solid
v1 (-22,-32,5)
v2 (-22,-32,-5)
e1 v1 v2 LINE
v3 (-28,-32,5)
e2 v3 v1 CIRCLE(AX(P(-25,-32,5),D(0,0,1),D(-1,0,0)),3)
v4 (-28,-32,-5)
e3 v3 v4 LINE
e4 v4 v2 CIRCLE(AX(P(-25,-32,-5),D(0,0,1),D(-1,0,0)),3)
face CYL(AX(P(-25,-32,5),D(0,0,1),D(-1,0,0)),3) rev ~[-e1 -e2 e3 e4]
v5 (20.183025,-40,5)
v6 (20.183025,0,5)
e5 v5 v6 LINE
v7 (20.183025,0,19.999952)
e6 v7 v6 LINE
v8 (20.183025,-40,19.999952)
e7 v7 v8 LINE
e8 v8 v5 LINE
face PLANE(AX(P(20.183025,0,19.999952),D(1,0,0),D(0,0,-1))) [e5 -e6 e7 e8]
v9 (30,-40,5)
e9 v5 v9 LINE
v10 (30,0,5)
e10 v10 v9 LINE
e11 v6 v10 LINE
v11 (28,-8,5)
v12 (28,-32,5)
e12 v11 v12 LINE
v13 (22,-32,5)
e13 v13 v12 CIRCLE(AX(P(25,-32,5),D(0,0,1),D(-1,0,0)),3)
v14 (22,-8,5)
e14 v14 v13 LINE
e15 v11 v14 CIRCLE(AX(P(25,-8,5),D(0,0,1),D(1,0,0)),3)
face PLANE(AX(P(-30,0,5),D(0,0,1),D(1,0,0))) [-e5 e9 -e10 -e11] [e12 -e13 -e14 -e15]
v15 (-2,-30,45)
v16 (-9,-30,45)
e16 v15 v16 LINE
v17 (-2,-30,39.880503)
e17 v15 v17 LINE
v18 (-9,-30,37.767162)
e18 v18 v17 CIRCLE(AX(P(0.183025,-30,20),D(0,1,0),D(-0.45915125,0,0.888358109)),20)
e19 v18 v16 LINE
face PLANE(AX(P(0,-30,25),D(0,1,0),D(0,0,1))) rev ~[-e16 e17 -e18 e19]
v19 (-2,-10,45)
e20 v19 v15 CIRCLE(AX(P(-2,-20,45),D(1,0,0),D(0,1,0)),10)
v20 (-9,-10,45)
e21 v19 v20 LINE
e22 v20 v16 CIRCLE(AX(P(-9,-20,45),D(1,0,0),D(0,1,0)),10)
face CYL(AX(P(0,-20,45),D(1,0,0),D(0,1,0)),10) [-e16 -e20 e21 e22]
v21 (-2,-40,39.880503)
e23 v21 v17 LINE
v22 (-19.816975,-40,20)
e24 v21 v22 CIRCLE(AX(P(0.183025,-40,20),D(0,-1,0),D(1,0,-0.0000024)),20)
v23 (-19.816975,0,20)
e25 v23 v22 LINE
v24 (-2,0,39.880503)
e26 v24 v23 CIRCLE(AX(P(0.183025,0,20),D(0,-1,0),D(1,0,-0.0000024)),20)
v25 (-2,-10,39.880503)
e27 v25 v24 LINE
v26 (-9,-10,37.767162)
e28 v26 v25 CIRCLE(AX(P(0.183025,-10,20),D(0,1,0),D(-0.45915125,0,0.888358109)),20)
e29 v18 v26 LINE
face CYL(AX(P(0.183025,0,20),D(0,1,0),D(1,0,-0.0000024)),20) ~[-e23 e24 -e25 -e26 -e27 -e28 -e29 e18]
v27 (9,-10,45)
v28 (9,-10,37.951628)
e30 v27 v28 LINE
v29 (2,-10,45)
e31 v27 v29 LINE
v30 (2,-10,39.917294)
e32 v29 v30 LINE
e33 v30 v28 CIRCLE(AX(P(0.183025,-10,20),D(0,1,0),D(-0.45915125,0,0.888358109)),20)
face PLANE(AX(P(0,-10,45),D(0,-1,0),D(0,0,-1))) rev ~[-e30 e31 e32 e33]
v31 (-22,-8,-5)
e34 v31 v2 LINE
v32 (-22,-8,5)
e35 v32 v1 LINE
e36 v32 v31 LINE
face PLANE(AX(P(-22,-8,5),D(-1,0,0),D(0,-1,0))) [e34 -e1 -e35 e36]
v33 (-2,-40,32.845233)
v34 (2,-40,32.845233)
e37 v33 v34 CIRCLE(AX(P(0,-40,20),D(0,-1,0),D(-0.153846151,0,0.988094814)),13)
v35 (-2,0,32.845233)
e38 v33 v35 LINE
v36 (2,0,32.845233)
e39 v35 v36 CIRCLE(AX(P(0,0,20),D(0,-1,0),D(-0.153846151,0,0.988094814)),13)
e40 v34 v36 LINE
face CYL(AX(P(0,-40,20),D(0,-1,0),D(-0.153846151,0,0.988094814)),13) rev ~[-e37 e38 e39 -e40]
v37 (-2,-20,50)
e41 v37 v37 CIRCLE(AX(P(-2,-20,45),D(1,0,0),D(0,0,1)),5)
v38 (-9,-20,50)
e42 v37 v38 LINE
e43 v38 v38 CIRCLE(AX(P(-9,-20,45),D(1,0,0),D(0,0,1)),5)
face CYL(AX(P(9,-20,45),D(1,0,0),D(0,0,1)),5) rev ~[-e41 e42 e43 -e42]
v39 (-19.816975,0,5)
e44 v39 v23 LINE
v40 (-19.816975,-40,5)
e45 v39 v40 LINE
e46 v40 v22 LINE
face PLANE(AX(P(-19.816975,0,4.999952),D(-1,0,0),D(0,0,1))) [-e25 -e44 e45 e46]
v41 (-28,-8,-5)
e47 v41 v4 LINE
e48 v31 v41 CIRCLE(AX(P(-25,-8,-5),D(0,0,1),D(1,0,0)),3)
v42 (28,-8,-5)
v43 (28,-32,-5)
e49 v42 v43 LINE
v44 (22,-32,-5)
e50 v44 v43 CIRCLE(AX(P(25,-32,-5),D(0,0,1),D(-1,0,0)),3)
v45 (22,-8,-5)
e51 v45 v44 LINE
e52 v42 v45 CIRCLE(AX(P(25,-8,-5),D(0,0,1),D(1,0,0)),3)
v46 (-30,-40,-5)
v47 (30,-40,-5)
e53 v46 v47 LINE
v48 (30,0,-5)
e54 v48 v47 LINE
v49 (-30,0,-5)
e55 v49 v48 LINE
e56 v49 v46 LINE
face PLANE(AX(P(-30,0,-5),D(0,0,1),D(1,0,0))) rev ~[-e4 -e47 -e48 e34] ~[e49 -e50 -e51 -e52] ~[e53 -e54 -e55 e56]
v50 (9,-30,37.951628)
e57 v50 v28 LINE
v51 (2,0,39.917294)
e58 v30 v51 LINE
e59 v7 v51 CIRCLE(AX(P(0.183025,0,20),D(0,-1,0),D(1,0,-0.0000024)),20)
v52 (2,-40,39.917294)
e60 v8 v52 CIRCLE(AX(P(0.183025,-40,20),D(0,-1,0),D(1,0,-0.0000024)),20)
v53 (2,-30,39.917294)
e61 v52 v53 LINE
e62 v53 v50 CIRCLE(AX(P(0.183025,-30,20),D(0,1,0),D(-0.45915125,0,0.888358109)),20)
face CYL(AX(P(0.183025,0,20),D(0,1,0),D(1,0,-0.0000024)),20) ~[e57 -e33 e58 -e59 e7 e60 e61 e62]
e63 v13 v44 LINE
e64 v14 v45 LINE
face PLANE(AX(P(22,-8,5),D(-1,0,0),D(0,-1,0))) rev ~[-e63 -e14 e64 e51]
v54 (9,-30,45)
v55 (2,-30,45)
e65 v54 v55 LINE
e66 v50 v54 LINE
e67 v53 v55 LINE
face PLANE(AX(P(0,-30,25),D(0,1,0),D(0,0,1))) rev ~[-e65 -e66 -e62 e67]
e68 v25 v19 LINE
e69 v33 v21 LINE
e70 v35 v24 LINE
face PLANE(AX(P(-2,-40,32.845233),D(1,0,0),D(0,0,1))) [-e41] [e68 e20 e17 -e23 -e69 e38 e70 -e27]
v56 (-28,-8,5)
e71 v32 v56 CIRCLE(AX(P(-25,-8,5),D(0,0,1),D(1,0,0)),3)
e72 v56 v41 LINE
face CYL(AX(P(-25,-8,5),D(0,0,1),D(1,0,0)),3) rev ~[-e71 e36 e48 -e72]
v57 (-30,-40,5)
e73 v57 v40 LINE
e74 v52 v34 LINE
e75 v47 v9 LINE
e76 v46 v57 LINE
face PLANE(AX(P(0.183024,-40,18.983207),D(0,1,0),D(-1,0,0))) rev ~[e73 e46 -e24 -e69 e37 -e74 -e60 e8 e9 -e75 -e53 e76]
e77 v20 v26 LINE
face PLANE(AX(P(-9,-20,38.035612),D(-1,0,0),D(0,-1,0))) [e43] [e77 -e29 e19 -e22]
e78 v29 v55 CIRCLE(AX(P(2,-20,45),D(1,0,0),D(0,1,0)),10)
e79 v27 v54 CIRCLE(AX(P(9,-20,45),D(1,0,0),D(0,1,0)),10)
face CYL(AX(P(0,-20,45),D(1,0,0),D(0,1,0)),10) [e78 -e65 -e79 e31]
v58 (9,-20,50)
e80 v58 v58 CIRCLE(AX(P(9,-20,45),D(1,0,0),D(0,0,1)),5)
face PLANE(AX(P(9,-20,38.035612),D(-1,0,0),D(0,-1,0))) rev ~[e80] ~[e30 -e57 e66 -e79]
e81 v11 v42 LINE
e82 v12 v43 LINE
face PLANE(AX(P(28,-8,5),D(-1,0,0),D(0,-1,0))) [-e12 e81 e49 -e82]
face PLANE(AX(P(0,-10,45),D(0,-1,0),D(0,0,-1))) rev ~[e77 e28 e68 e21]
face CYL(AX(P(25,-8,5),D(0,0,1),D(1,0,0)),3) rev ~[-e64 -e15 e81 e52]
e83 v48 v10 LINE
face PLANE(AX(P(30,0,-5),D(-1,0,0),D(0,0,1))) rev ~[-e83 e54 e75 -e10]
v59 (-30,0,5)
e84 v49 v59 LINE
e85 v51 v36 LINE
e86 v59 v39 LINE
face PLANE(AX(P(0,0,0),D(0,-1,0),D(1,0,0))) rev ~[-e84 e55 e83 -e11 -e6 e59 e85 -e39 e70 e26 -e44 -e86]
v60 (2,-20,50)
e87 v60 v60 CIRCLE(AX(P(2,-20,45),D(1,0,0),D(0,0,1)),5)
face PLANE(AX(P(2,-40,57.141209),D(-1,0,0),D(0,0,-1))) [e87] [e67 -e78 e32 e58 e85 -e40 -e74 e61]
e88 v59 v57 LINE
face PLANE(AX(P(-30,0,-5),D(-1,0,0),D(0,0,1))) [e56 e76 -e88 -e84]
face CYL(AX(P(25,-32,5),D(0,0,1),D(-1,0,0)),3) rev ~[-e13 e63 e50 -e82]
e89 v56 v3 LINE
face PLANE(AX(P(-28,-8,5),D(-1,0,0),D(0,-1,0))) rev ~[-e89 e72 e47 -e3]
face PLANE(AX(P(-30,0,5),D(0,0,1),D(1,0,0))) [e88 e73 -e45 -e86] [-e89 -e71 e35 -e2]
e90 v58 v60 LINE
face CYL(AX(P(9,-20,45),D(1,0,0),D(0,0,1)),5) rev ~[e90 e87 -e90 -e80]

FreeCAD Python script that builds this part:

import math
import FreeCAD as App
import Part
import Sketcher
Q = App.Units.Quantity


def add_polygon(sketch, points):
    """Adds a closed chain of lines whose ends are joined by coincident constraints."""
    first, n = sketch.GeometryCount, len(points)
    for a, b in zip(points, points[1:] + points[:1]):
        sketch.addGeometry(Part.LineSegment(App.Vector(*a, 0), App.Vector(*b, 0)), False)
    for i in range(n):
        sketch.addConstraint(Sketcher.Constraint("Coincident", first + i, 2, first + (i + 1) % n, 1))

doc = App.newDocument("Part")
body = doc.addObject("PartDesign::Body", "Body")

# Sketch on XZ plane
sketch1 = body.newObject("Sketcher::SketchObject", "Sketch")
sketch1.AttachmentSupport = (doc.getObject("XZ_Plane"), [""])
sketch1.MapMode = "FlatFace"
add_polygon(sketch1, [(-30, 5), (-30, -5), (30, -5), (30, 5)])  # lines 0-3
sketch1.addConstraint(Sketcher.Constraint("Vertical", 0))
sketch1.addConstraint(Sketcher.Constraint("Horizontal", 1))
sketch1.addConstraint(Sketcher.Constraint("Vertical", 2))
sketch1.addConstraint(Sketcher.Constraint("Horizontal", 3))
sketch1.addConstraint(Sketcher.Constraint("Symmetric", 0, 2, 2, 2, -1, 1))
sketch1.addConstraint(Sketcher.Constraint("DistanceX", 1, 1, 1, 2, Q("60 mm")))
sketch1.addConstraint(Sketcher.Constraint("DistanceY", 0, 2, 0, 1, Q("10 mm")))
pad1 = body.newObject("PartDesign::Pad", "Pad")
pad1.Profile = sketch1
pad1.Length = 40

# Sketch on XZ plane
sketch2 = body.newObject("Sketcher::SketchObject", "Sketch001")
sketch2.AttachmentSupport = (doc.getObject("XZ_Plane"), [""])
sketch2.MapMode = "FlatFace"
sketch2.addGeometry(Part.LineSegment(App.Vector(-20, 20, 0), App.Vector(-20, 5, 0)), False)
sketch2.addGeometry(Part.LineSegment(App.Vector(-20, 5, 0), App.Vector(20, 5, 0)), False)
sketch2.addGeometry(Part.LineSegment(App.Vector(20, 5, 0), App.Vector(20, 20, 0)), False)
sketch2.addGeometry(Part.ArcOfCircle(Part.Circle(App.Vector(0, 20, 0), App.Vector(0, 0, 1), 20), math.radians(0), math.radians(180)), False)
sketch2.addConstraint(Sketcher.Constraint("Coincident", 0, 2, 1, 1))
sketch2.addConstraint(Sketcher.Constraint("Coincident", 1, 2, 2, 1))
sketch2.addConstraint(Sketcher.Constraint("Coincident", 2, 2, 3, 1))
sketch2.addConstraint(Sketcher.Constraint("Tangent", 3, 2, 0, 1))
sketch2.addConstraint(Sketcher.Constraint("Vertical", 0))
sketch2.addConstraint(Sketcher.Constraint("Horizontal", 1))
sketch2.addConstraint(Sketcher.Constraint("Vertical", 2))
sketch2.addConstraint(Sketcher.Constraint("Radius", 3, Q("20 mm")))
sketch2.addConstraint(Sketcher.Constraint("DistanceY", 2, 1, 2, 2, Q("15 mm")))
sketch2.addConstraint(Sketcher.Constraint("DistanceY", -1, 1, 3, 3, Q("20 mm")))
sketch2.addConstraint(Sketcher.Constraint("DistanceY", 0, 2, 0, 1, Q("15.000048 mm")))
sketch2.addConstraint(Sketcher.Constraint("DistanceX", -1, 1, 3, 3, Q("0.183025 mm")))
pad2 = body.newObject("PartDesign::Pad", "Pad001")
pad2.Profile = sketch2
pad2.Length = 40

# Sketch on YZ plane
sketch3 = body.newObject("Sketcher::SketchObject", "Sketch002")
sketch3.AttachmentSupport = (doc.getObject("YZ_Plane"), [""])
sketch3.MapMode = "FlatFace"
sketch3.addGeometry(Part.LineSegment(App.Vector(-30, 45, 0), App.Vector(-30, 25, 0)), False)
sketch3.addGeometry(Part.LineSegment(App.Vector(-30, 25, 0), App.Vector(-10, 25, 0)), False)
sketch3.addGeometry(Part.LineSegment(App.Vector(-10, 25, 0), App.Vector(-10, 45, 0)), False)
sketch3.addGeometry(Part.ArcOfCircle(Part.Circle(App.Vector(-20, 45, 0), App.Vector(0, 0, 1), 10), math.radians(0), math.radians(180)), False)
sketch3.addConstraint(Sketcher.Constraint("Coincident", 0, 2, 1, 1))
sketch3.addConstraint(Sketcher.Constraint("Coincident", 1, 2, 2, 1))
sketch3.addConstraint(Sketcher.Constraint("Tangent", 2, 2, 3, 1))
sketch3.addConstraint(Sketcher.Constraint("Tangent", 3, 2, 0, 1))
sketch3.addConstraint(Sketcher.Constraint("Vertical", 0))
sketch3.addConstraint(Sketcher.Constraint("Horizontal", 1))
sketch3.addConstraint(Sketcher.Constraint("Vertical", 2))
sketch3.addConstraint(Sketcher.Constraint("Equal", 1, 0))
sketch3.addConstraint(Sketcher.Constraint("Radius", 3, Q("10 mm")))
sketch3.addConstraint(Sketcher.Constraint("DistanceX", 3, 3, -1, 1, Q("20 mm")))
sketch3.addConstraint(Sketcher.Constraint("DistanceY", -1, 1, 3, 3, Q("45 mm")))
pad3 = body.newObject("PartDesign::Pad", "Pad002")
pad3.Profile = sketch3
pad3.Type = "TwoLengths"
pad3.Length = 9
pad3.Length2 = 9

# Sketch on YZ plane
sketch4 = body.newObject("Sketcher::SketchObject", "Sketch003")
sketch4.AttachmentSupport = (doc.getObject("YZ_Plane"), [""])
sketch4.MapMode = "FlatFace"
sketch4.AttachmentOffset = App.Placement(App.Vector(0, 0, 9), App.Rotation())
sketch4.addGeometry(Part.Circle(App.Vector(-20, 45, 0), App.Vector(0, 0, 1), 5), False)
sketch4.addConstraint(Sketcher.Constraint("Diameter", 0, Q("10 mm")))
sketch4.addConstraint(Sketcher.Constraint("DistanceX", 0, 3, -1, 1, Q("20 mm")))
sketch4.addConstraint(Sketcher.Constraint("DistanceY", -1, 1, 0, 3, Q("45 mm")))
pocket1 = body.newObject("PartDesign::Pocket", "Pocket")
pocket1.Profile = sketch4
pocket1.Length = 18

# Sketch on XZ plane
sketch5 = body.newObject("Sketcher::SketchObject", "Sketch004")
sketch5.AttachmentSupport = (doc.getObject("XZ_Plane"), [""])
sketch5.MapMode = "FlatFace"
sketch5.AttachmentOffset = App.Placement(App.Vector(0, 0, 40), App.Rotation())
sketch5.addGeometry(Part.ArcOfCircle(Part.Circle(App.Vector(0, 20, 0), App.Vector(0, 0, 1), 13), math.radians(99), math.radians(441)), False)
sketch5.addGeometry(Part.LineSegment(App.Vector(2, 32.8, 0), App.Vector(2, 57.1, 0)), False)
sketch5.addGeometry(Part.LineSegment(App.Vector(2, 57.1, 0), App.Vector(-2, 57.1, 0)), False)
sketch5.addGeometry(Part.LineSegment(App.Vector(-2, 57.1, 0), App.Vector(-2, 32.8, 0)), False)
sketch5.addConstraint(Sketcher.Constraint("Coincident", 0, 2, 1, 1))
sketch5.addConstraint(Sketcher.Constraint("Coincident", 1, 2, 2, 1))
sketch5.addConstraint(Sketcher.Constraint("Coincident", 2, 2, 3, 1))
sketch5.addConstraint(Sketcher.Constraint("Coincident", 3, 2, 0, 1))
sketch5.addConstraint(Sketcher.Constraint("Vertical", 1))
sketch5.addConstraint(Sketcher.Constraint("Horizontal", 2))
sketch5.addConstraint(Sketcher.Constraint("Vertical", 3))
sketch5.addConstraint(Sketcher.Constraint("Symmetric", 0, 2, 3, 2, -2))
sketch5.addConstraint(Sketcher.Constraint("Radius", 0, Q("13 mm")))
sketch5.addConstraint(Sketcher.Constraint("DistanceX", 2, 2, 2, 1, Q("4 mm")))
sketch5.addConstraint(Sketcher.Constraint("DistanceY", -1, 1, 0, 3, Q("20 mm")))
sketch5.addConstraint(Sketcher.Constraint("DistanceY", 1, 1, 1, 2, Q("24.295976 mm")))
pocket2 = body.newObject("PartDesign::Pocket", "Pocket001")
pocket2.Profile = sketch5
pocket2.Length = 40

# Sketch on XY plane
sketch6 = body.newObject("Sketcher::SketchObject", "Sketch005")
sketch6.AttachmentSupport = (doc.getObject("XY_Plane"), [""])
sketch6.MapMode = "FlatFace"
sketch6.AttachmentOffset = App.Placement(App.Vector(0, 0, 5), App.Rotation())
sketch6.addGeometry(Part.ArcOfCircle(Part.Circle(App.Vector(25, -8, 0), App.Vector(0, 0, 1), 3), math.radians(0), math.radians(180)), False)
sketch6.addGeometry(Part.LineSegment(App.Vector(22, -8, 0), App.Vector(22, -32, 0)), False)
sketch6.addGeometry(Part.ArcOfCircle(Part.Circle(App.Vector(25, -32, 0), App.Vector(0, 0, 1), 3), math.radians(180), math.radians(360)), False)
sketch6.addGeometry(Part.LineSegment(App.Vector(28, -32, 0), App.Vector(28, -8, 0)), False)
sketch6.addGeometry(Part.ArcOfCircle(Part.Circle(App.Vector(-25, -8, 0), App.Vector(0, 0, 1), 3), math.radians(0), math.radians(180)), False)
sketch6.addGeometry(Part.LineSegment(App.Vector(-28, -8, 0), App.Vector(-28, -32, 0)), False)
sketch6.addGeometry(Part.ArcOfCircle(Part.Circle(App.Vector(-25, -32, 0), App.Vector(0, 0, 1), 3), math.radians(180), math.radians(360)), False)
sketch6.addGeometry(Part.LineSegment(App.Vector(-22, -32, 0), App.Vector(-22, -8, 0)), False)
sketch6.addConstraint(Sketcher.Constraint("Tangent", 0, 2, 1, 1))
sketch6.addConstraint(Sketcher.Constraint("Tangent", 1, 2, 2, 1))
sketch6.addConstraint(Sketcher.Constraint("Tangent", 2, 2, 3, 1))
sketch6.addConstraint(Sketcher.Constraint("Tangent", 3, 2, 0, 1))
sketch6.addConstraint(Sketcher.Constraint("Tangent", 4, 2, 5, 1))
sketch6.addConstraint(Sketcher.Constraint("Tangent", 5, 2, 6, 1))
sketch6.addConstraint(Sketcher.Constraint("Tangent", 6, 2, 7, 1))
sketch6.addConstraint(Sketcher.Constraint("Tangent", 7, 2, 4, 1))
sketch6.addConstraint(Sketcher.Constraint("Vertical", 1))
sketch6.addConstraint(Sketcher.Constraint("Vertical", 3))
sketch6.addConstraint(Sketcher.Constraint("Vertical", 5))
sketch6.addConstraint(Sketcher.Constraint("Vertical", 7))
sketch6.addConstraint(Sketcher.Constraint("Equal", 2, 4))
sketch6.addConstraint(Sketcher.Constraint("Symmetric", 0, 3, 4, 3, -2))
sketch6.addConstraint(Sketcher.Constraint("Horizontal", 2, 3, 6, 3))
sketch6.addConstraint(Sketcher.Constraint("Radius", 0, Q("3 mm")))
sketch6.addConstraint(Sketcher.Constraint("DistanceY", 1, 2, 1, 1, Q("24 mm")))
sketch6.addConstraint(Sketcher.Constraint("DistanceX", -1, 1, 0, 3, Q("25 mm")))
sketch6.addConstraint(Sketcher.Constraint("DistanceY", 0, 3, -1, 1, Q("8 mm")))
pocket3 = body.newObject("PartDesign::Pocket", "Pocket002")
pocket3.Profile = sketch6
pocket3.Length = 10

doc.recompute()
